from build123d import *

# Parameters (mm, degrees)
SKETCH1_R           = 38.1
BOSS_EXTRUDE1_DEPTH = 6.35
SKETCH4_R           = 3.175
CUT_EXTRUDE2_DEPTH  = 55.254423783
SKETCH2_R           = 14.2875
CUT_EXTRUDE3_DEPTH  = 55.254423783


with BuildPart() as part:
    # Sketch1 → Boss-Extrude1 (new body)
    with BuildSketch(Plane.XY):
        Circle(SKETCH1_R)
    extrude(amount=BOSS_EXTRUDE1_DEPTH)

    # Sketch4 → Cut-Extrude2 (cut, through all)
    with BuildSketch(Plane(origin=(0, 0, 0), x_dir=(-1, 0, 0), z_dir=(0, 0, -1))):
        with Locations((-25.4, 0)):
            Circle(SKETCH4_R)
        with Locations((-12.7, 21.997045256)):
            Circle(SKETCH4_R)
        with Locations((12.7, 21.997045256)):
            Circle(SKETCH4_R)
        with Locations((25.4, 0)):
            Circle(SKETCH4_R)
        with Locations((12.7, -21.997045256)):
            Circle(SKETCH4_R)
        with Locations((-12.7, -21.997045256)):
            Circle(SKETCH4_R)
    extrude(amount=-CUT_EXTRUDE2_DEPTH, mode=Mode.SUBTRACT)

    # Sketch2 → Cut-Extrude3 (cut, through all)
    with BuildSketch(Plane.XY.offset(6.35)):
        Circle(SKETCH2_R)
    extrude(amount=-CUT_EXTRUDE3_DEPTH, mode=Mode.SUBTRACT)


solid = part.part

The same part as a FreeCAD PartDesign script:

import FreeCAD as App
import Part
import Sketcher

V = App.Vector
Q = App.Units.Quantity

doc = App.newDocument("Part")
params = doc.addObject("Spreadsheet::Sheet", "Params")
for row, (alias, value) in enumerate([
    ("sketch1_diameter", "3 in"),
    ("pad1_length", "0.25 in"),
    ("sketch2_diameter", "0.25 in"),
    ("sketch3_diameter", "1.125 in"),
], start=1):
    params.set(f"A{row}", alias)
    params.set(f"B{row}", "=" + value)
    params.setAlias(f"B{row}", alias)

body = doc.addObject("PartDesign::Body", "Body")

# Sketch on XY plane
sketch1 = body.newObject("Sketcher::SketchObject", "Sketch")
sketch1.AttachmentSupport = (doc.getObject("XY_Plane"), [""])
sketch1.MapMode = "FlatFace"
sketch1.addGeometry(Part.Circle(V(0, 0, 0), V(0, 0, 1), 38), False)
sketch1.addConstraint(Sketcher.Constraint("Coincident", 0, 3, -1, 1))
sketch1.addConstraint(Sketcher.Constraint("Diameter", 0, Q("3 in")))
sketch1.setExpression("Constraints[1]", "Params.sketch1_diameter")
pad1 = body.newObject("PartDesign::Pad", "Pad")
pad1.Profile = sketch1
pad1.setExpression("Length", "Params.pad1_length")

# Sketch on XY plane
sketch2 = body.newObject("Sketcher::SketchObject", "Sketch001")
sketch2.AttachmentSupport = (doc.getObject("XY_Plane"), [""])
sketch2.MapMode = "FlatFace"
sketch2.addGeometry(Part.Circle(V(25.4, 0, 0), V(0, 0, 1), 3.2), False)
sketch2.addGeometry(Part.Circle(V(12.7, 22, 0), V(0, 0, 1), 3.2), False)
sketch2.addGeometry(Part.Circle(V(-12.7, 22, 0), V(0, 0, 1), 3.2), False)
sketch2.addGeometry(Part.Circle(V(-25.4, 0, 0), V(0, 0, 1), 3.2), False)
sketch2.addGeometry(Part.Circle(V(-12.7, -22, 0), V(0, 0, 1), 3.2), False)
sketch2.addGeometry(Part.Circle(V(12.7, -22, 0), V(0, 0, 1), 3.2), False)
sketch2.addConstraint(Sketcher.Constraint("Equal", 0, 1))
sketch2.addConstraint(Sketcher.Constraint("Equal", 1, 2))
sketch2.addConstraint(Sketcher.Constraint("Equal", 2, 3))
sketch2.addConstraint(Sketcher.Constraint("Equal", 3, 4))
sketch2.addConstraint(Sketcher.Constraint("Equal", 4, 5))
sketch2.addConstraint(Sketcher.Constraint("Symmetric", 0, 3, 3, 3, -1, 1))
sketch2.addConstraint(Sketcher.Constraint("Symmetric", 1, 3, 4, 3, -1, 1))
sketch2.addConstraint(Sketcher.Constraint("Symmetric", 2, 3, 5, 3, -1, 1))
sketch2.addConstraint(Sketcher.Constraint("Symmetric", 1, 3, 2, 3, -2))
sketch2.addConstraint(Sketcher.Constraint("PointOnObject", 0, 3, -1))
sketch2.addConstraint(Sketcher.Constraint("Diameter", 0, Q("0.25 in")))
sketch2.addConstraint(Sketcher.Constraint("DistanceX", -1, 1, 0, 3, Q("1 in")))
sketch2.addConstraint(Sketcher.Constraint("DistanceX", 2, 3, 1, 3, Q("1 in")))
sketch2.addConstraint(Sketcher.Constraint("DistanceY", 4, 3, 2, 3, Q("43.994091 mm")))
sketch2.setExpression("Constraints[10]", "Params.sketch2_diameter")
pocket1 = body.newObject("PartDesign::Pocket", "Pocket")
pocket1.Profile = sketch2
pocket1.Type = "ThroughAll"
pocket1.Reversed = True

# Sketch on XY plane
sketch3 = body.newObject("Sketcher::SketchObject", "Sketch002")
sketch3.AttachmentSupport = (doc.getObject("XY_Plane"), [""])
sketch3.MapMode = "FlatFace"
sketch3.AttachmentOffset = App.Placement(V(0, 0, 0.25 * 25.4), App.Rotation())
sketch3.addGeometry(Part.Circle(V(0, 0, 0), V(0, 0, 1), 14), False)
sketch3.addConstraint(Sketcher.Constraint("Coincident", 0, 3, -1, 1))
sketch3.addConstraint(Sketcher.Constraint("Diameter", 0, Q("1.125 in")))
sketch3.setExpression("Constraints[1]", "Params.sketch3_diameter")
pocket2 = body.newObject("PartDesign::Pocket", "Pocket001")
pocket2.Profile = sketch3
pocket2.Type = "ThroughAll"

doc.recompute()
